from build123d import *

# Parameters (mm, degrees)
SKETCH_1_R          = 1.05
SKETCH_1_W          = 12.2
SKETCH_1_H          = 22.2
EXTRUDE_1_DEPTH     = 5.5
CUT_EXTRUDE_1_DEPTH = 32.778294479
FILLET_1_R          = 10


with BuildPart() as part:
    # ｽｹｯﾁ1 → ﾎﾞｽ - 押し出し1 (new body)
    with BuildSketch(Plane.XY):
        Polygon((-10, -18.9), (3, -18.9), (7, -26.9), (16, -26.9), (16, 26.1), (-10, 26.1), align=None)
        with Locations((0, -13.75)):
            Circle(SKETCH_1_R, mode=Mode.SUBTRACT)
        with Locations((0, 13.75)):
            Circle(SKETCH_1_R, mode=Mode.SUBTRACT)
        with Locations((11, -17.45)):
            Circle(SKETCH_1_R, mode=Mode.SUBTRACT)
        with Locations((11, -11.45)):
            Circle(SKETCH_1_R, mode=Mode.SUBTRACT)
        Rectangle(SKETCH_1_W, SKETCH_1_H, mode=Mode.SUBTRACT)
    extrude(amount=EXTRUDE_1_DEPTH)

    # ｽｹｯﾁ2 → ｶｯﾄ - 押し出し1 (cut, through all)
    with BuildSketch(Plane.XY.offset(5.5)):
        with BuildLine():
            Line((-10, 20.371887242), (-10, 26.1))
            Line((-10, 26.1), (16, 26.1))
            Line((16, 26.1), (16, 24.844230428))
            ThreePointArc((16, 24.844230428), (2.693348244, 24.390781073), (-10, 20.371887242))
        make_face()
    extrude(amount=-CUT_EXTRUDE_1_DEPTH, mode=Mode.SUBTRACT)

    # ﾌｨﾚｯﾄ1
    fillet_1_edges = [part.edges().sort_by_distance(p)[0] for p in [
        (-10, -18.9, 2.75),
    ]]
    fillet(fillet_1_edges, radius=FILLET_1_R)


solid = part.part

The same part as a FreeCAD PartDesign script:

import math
import FreeCAD as App
import Part
import Sketcher


def edges_at(feature, points):
    """Names of the edges that pass closest to the given points."""
    edges = feature.Shape.Edges
    near = lambda p: min(range(len(edges)), key=lambda i: edges[i].distToShape(Part.Vertex(*p))[0])
    return sorted({f"Edge{near(p) + 1}" for p in points})

doc = App.newDocument("Part")
body = doc.addObject("PartDesign::Body", "Body")

# Sketch on XY plane
sketch1 = doc.addObject("Sketcher::SketchObject", "Sketch")
body.addObject(sketch1)
sketch1.AttachmentSupport = (doc.XY_Plane, [""])
sketch1.MapMode = "FlatFace"
sketch1.addGeometry([
    Part.LineSegment(App.Vector(-10, -18.9, 0), App.Vector(3, -18.9, 0)),  # 0
    Part.LineSegment(App.Vector(3, -18.9, 0), App.Vector(7, -26.9, 0)),  # 1
    Part.LineSegment(App.Vector(7, -26.9, 0), App.Vector(16, -26.9, 0)),  # 2
    Part.LineSegment(App.Vector(16, -26.9, 0), App.Vector(16, 26.1, 0)),  # 3
    Part.LineSegment(App.Vector(16, 26.1, 0), App.Vector(-10, 26.1, 0)),  # 4
    Part.LineSegment(App.Vector(-10, 26.1, 0), App.Vector(-10, -18.9, 0)),  # 5
    Part.Circle(App.Vector(0, -13.8, 0), App.Vector(0, 0, 1), 1.1),  # 6
    Part.Circle(App.Vector(11, -17.4, 0), App.Vector(0, 0, 1), 1.1),  # 7
    Part.Circle(App.Vector(11, -11.4, 0), App.Vector(0, 0, 1), 1.1),  # 8
    Part.LineSegment(App.Vector(6.1, -11.1, 0), App.Vector(-6.1, -11.1, 0)),  # 9
    Part.LineSegment(App.Vector(-6.1, -11.1, 0), App.Vector(-6.1, 11.1, 0)),  # 10
    Part.LineSegment(App.Vector(-6.1, 11.1, 0), App.Vector(6.1, 11.1, 0)),  # 11
    Part.LineSegment(App.Vector(6.1, 11.1, 0), App.Vector(6.1, -11.1, 0)),  # 12
    Part.Circle(App.Vector(0, 13.8, 0), App.Vector(0, 0, 1), 1.1),  # 13
], False)
sketch1.addConstraint([
    Sketcher.Constraint("Coincident", 0, 2, 1, 1),
    Sketcher.Constraint("Coincident", 1, 2, 2, 1),
    Sketcher.Constraint("Coincident", 2, 2, 3, 1),
    Sketcher.Constraint("Coincident", 3, 2, 4, 1),
    Sketcher.Constraint("Coincident", 4, 2, 5, 1),
    Sketcher.Constraint("Coincident", 5, 2, 0, 1),
    Sketcher.Constraint("Coincident", 9, 2, 10, 1),
    Sketcher.Constraint("Coincident", 10, 2, 11, 1),
    Sketcher.Constraint("Coincident", 11, 2, 12, 1),
    Sketcher.Constraint("Coincident", 12, 2, 9, 1),
    Sketcher.Constraint("Horizontal", 0),
    Sketcher.Constraint("Horizontal", 2),
    Sketcher.Constraint("Vertical", 3),
    Sketcher.Constraint("Horizontal", 4),
    Sketcher.Constraint("Vertical", 5),
    Sketcher.Constraint("Horizontal", 9),
    Sketcher.Constraint("Vertical", 10),
    Sketcher.Constraint("Horizontal", 11),
    Sketcher.Constraint("Vertical", 12),
    Sketcher.Constraint("Equal", 6, 7),
    Sketcher.Constraint("Equal", 7, 8),
    Sketcher.Constraint("Equal", 8, 13),
    Sketcher.Constraint("Symmetric", 6, 3, 13, 3, -1, 1),
    Sketcher.Constraint("Symmetric", 9, 2, 11, 2, -1, 1),
    Sketcher.Constraint("PointOnObject", 6, 3, -2),
    Sketcher.Constraint("Vertical", 7, 3, 8, 3),
    Sketcher.Constraint("Diameter", 6, 2.1),
    Sketcher.Constraint("DistanceX", 0, 1, 0, 2, 13.0),
    Sketcher.Constraint("DistanceX", 2, 1, 2, 2, 9.0),
    Sketcher.Constraint("DistanceX", 4, 2, 4, 1, 26.0),
    Sketcher.Constraint("DistanceY", 3, 1, 3, 2, 53.0),
    Sketcher.Constraint("DistanceY", 5, 2, 5, 1, 45.0),
    Sketcher.Constraint("DistanceX", 9, 2, 9, 1, 12.2),
    Sketcher.Constraint("DistanceY", 10, 1, 10, 2, 22.2),
    Sketcher.Constraint("DistanceX", -1, 1, 7, 3, 11.0),
    Sketcher.Constraint("DistanceX", -1, 1, 0, 2, 3.0),
    Sketcher.Constraint("DistanceY", 7, 3, 8, 3, 6.0),
    Sketcher.Constraint("DistanceY", 10, 2, 4, 2, 15.0),
    Sketcher.Constraint("DistanceY", 7, 3, 6, 3, 3.7),
    Sketcher.Constraint("DistanceY", 8, 3, 13, 3, 25.2),
])
pad1 = doc.addObject("PartDesign::Pad", "Pad")
body.addObject(pad1)
pad1.Profile = sketch1
pad1.Length = 5.5

# Sketch on XY plane
sketch2 = doc.addObject("Sketcher::SketchObject", "Sketch001")
body.addObject(sketch2)
sketch2.AttachmentSupport = (doc.XY_Plane, [""])
sketch2.MapMode = "FlatFace"
sketch2.AttachmentOffset = App.Placement(App.Vector(0, 0, 5.5), App.Rotation())
sketch2.addGeometry([
    Part.LineSegment(App.Vector(-10, 26.1, 0), App.Vector(-10, 20.4, 0)),
    Part.ArcOfCircle(Part.Circle(App.Vector(11, -23.9, 0), App.Vector(0, 0, 1), 49), math.radians(84), math.radians(115)),
    Part.LineSegment(App.Vector(16, 24.8, 0), App.Vector(16, 26.1, 0)),
    Part.LineSegment(App.Vector(16, 26.1, 0), App.Vector(-10, 26.1, 0)),
], False)
sketch2.addConstraint([
    Sketcher.Constraint("Coincident", 0, 2, 1, 2),
    Sketcher.Constraint("Coincident", 1, 1, 2, 1),
    Sketcher.Constraint("Coincident", 2, 2, 3, 1),
    Sketcher.Constraint("Coincident", 3, 2, 0, 1),
    Sketcher.Constraint("Vertical", 0),
    Sketcher.Constraint("Vertical", 2),
    Sketcher.Constraint("Horizontal", 3),
    Sketcher.Constraint("Radius", 1, 49.0),
    Sketcher.Constraint("DistanceX", 3, 2, 3, 1, 26.0),
    Sketcher.Constraint("DistanceX", -1, 1, 1, 3, 11.0),
    Sketcher.Constraint("DistanceX", 0, 2, -1, 1, 10.0),
    Sketcher.Constraint("DistanceY", 1, 3, 2, 2, 50.0),
    Sketcher.Constraint("DistanceY", 1, 3, -1, 1, 23.9),
])
pocket1 = doc.addObject("PartDesign::Pocket", "Pocket")
body.addObject(pocket1)
pocket1.Profile = sketch2
pocket1.Type = "ThroughAll"
doc.recompute()

fillet = doc.addObject("PartDesign::Fillet", "Fillet")
body.addObject(fillet)
fillet.Base = (pocket1, edges_at(pocket1, [(-10, -18.9, 2.75)]))
fillet.Radius = 10

doc.recompute()
